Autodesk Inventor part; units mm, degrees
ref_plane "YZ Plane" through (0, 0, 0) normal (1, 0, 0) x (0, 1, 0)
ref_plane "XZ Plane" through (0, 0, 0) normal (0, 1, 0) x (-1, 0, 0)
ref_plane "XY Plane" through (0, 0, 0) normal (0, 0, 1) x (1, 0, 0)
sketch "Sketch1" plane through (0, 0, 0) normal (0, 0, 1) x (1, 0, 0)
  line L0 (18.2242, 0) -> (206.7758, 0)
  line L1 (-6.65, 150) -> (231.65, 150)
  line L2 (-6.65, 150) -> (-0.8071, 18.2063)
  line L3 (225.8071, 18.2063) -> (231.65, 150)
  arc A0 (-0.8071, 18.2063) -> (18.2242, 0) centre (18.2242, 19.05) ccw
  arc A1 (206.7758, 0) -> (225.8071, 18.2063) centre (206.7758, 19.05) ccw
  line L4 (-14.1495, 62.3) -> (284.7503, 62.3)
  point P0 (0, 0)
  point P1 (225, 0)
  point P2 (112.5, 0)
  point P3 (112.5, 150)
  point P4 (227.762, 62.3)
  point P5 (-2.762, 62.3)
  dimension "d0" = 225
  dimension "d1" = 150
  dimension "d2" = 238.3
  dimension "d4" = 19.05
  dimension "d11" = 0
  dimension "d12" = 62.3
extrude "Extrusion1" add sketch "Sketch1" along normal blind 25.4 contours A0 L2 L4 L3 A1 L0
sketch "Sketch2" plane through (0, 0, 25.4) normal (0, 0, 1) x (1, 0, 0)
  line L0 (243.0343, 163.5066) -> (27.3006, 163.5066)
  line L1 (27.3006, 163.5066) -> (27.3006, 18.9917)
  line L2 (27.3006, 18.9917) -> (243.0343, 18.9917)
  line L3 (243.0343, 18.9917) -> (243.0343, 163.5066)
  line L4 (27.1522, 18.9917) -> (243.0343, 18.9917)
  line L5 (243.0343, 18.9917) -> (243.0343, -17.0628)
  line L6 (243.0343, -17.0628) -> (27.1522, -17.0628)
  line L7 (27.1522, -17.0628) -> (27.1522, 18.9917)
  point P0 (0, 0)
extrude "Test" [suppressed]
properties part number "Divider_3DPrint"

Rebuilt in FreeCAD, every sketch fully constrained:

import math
import FreeCAD as App
import Part
import Sketcher
Q = App.Units.Quantity

doc = App.newDocument("Part")
body = doc.addObject("PartDesign::Body", "Body")

# Sketch on XY plane
sketch1 = body.newObject("Sketcher::SketchObject", "Sketch")
sketch1.AttachmentSupport = (doc.getObject("XY_Plane"), [""])
sketch1.MapMode = "FlatFace"
sketch1.addGeometry(Part.ArcOfCircle(Part.Circle(App.Vector(18, 19, 0), App.Vector(0, 0, 1), 19), math.radians(-177), math.radians(-90)), False)
sketch1.addGeometry(Part.LineSegment(App.Vector(18, 0, 0), App.Vector(207, 0, 0)), False)
sketch1.addGeometry(Part.ArcOfCircle(Part.Circle(App.Vector(207, 19, 0), App.Vector(0, 0, 1), 19), math.radians(-90), math.radians(-3)), False)
sketch1.addGeometry(Part.LineSegment(App.Vector(226, 18, 0), App.Vector(228, 62, 0)), False)
sketch1.addGeometry(Part.LineSegment(App.Vector(228, 62, 0), App.Vector(-3, 62, 0)), False)
sketch1.addGeometry(Part.LineSegment(App.Vector(-3, 62, 0), App.Vector(-1, 18, 0)), False)
sketch1.addConstraint(Sketcher.Constraint("Tangent", 0, 2, 1, 1))
sketch1.addConstraint(Sketcher.Constraint("Tangent", 1, 2, 2, 1))
sketch1.addConstraint(Sketcher.Constraint("Tangent", 2, 2, 3, 1))
sketch1.addConstraint(Sketcher.Constraint("Coincident", 3, 2, 4, 1))
sketch1.addConstraint(Sketcher.Constraint("Coincident", 4, 2, 5, 1))
sketch1.addConstraint(Sketcher.Constraint("Tangent", 5, 2, 0, 1))
sketch1.addConstraint(Sketcher.Constraint("Horizontal", 1))
sketch1.addConstraint(Sketcher.Constraint("Horizontal", 4))
sketch1.addConstraint(Sketcher.Constraint("Equal", 0, 2))
sketch1.addConstraint(Sketcher.Constraint("PointOnObject", 0, 2, -1))
sketch1.addConstraint(Sketcher.Constraint("Horizontal", 2, 2, 5, 2))
sketch1.addConstraint(Sketcher.Constraint("Radius", 0, Q("0.75 in")))
sketch1.addConstraint(Sketcher.Constraint("DistanceY", -1, 1, 3, 2, 62.3))
sketch1.addConstraint(Sketcher.Constraint("DistanceX", 1, 1, 1, 2, Q("7.4233 in")))
sketch1.addConstraint(Sketcher.Constraint("DistanceX", -1, 1, 3, 2, Q("8.967 in")))
sketch1.addConstraint(Sketcher.Constraint("DistanceX", 4, 2, 4, 1, 230.5239))
pad1 = body.newObject("PartDesign::Pad", "Pad")
pad1.Profile = sketch1
pad1.Length = Q("1 in")

doc.recompute()
